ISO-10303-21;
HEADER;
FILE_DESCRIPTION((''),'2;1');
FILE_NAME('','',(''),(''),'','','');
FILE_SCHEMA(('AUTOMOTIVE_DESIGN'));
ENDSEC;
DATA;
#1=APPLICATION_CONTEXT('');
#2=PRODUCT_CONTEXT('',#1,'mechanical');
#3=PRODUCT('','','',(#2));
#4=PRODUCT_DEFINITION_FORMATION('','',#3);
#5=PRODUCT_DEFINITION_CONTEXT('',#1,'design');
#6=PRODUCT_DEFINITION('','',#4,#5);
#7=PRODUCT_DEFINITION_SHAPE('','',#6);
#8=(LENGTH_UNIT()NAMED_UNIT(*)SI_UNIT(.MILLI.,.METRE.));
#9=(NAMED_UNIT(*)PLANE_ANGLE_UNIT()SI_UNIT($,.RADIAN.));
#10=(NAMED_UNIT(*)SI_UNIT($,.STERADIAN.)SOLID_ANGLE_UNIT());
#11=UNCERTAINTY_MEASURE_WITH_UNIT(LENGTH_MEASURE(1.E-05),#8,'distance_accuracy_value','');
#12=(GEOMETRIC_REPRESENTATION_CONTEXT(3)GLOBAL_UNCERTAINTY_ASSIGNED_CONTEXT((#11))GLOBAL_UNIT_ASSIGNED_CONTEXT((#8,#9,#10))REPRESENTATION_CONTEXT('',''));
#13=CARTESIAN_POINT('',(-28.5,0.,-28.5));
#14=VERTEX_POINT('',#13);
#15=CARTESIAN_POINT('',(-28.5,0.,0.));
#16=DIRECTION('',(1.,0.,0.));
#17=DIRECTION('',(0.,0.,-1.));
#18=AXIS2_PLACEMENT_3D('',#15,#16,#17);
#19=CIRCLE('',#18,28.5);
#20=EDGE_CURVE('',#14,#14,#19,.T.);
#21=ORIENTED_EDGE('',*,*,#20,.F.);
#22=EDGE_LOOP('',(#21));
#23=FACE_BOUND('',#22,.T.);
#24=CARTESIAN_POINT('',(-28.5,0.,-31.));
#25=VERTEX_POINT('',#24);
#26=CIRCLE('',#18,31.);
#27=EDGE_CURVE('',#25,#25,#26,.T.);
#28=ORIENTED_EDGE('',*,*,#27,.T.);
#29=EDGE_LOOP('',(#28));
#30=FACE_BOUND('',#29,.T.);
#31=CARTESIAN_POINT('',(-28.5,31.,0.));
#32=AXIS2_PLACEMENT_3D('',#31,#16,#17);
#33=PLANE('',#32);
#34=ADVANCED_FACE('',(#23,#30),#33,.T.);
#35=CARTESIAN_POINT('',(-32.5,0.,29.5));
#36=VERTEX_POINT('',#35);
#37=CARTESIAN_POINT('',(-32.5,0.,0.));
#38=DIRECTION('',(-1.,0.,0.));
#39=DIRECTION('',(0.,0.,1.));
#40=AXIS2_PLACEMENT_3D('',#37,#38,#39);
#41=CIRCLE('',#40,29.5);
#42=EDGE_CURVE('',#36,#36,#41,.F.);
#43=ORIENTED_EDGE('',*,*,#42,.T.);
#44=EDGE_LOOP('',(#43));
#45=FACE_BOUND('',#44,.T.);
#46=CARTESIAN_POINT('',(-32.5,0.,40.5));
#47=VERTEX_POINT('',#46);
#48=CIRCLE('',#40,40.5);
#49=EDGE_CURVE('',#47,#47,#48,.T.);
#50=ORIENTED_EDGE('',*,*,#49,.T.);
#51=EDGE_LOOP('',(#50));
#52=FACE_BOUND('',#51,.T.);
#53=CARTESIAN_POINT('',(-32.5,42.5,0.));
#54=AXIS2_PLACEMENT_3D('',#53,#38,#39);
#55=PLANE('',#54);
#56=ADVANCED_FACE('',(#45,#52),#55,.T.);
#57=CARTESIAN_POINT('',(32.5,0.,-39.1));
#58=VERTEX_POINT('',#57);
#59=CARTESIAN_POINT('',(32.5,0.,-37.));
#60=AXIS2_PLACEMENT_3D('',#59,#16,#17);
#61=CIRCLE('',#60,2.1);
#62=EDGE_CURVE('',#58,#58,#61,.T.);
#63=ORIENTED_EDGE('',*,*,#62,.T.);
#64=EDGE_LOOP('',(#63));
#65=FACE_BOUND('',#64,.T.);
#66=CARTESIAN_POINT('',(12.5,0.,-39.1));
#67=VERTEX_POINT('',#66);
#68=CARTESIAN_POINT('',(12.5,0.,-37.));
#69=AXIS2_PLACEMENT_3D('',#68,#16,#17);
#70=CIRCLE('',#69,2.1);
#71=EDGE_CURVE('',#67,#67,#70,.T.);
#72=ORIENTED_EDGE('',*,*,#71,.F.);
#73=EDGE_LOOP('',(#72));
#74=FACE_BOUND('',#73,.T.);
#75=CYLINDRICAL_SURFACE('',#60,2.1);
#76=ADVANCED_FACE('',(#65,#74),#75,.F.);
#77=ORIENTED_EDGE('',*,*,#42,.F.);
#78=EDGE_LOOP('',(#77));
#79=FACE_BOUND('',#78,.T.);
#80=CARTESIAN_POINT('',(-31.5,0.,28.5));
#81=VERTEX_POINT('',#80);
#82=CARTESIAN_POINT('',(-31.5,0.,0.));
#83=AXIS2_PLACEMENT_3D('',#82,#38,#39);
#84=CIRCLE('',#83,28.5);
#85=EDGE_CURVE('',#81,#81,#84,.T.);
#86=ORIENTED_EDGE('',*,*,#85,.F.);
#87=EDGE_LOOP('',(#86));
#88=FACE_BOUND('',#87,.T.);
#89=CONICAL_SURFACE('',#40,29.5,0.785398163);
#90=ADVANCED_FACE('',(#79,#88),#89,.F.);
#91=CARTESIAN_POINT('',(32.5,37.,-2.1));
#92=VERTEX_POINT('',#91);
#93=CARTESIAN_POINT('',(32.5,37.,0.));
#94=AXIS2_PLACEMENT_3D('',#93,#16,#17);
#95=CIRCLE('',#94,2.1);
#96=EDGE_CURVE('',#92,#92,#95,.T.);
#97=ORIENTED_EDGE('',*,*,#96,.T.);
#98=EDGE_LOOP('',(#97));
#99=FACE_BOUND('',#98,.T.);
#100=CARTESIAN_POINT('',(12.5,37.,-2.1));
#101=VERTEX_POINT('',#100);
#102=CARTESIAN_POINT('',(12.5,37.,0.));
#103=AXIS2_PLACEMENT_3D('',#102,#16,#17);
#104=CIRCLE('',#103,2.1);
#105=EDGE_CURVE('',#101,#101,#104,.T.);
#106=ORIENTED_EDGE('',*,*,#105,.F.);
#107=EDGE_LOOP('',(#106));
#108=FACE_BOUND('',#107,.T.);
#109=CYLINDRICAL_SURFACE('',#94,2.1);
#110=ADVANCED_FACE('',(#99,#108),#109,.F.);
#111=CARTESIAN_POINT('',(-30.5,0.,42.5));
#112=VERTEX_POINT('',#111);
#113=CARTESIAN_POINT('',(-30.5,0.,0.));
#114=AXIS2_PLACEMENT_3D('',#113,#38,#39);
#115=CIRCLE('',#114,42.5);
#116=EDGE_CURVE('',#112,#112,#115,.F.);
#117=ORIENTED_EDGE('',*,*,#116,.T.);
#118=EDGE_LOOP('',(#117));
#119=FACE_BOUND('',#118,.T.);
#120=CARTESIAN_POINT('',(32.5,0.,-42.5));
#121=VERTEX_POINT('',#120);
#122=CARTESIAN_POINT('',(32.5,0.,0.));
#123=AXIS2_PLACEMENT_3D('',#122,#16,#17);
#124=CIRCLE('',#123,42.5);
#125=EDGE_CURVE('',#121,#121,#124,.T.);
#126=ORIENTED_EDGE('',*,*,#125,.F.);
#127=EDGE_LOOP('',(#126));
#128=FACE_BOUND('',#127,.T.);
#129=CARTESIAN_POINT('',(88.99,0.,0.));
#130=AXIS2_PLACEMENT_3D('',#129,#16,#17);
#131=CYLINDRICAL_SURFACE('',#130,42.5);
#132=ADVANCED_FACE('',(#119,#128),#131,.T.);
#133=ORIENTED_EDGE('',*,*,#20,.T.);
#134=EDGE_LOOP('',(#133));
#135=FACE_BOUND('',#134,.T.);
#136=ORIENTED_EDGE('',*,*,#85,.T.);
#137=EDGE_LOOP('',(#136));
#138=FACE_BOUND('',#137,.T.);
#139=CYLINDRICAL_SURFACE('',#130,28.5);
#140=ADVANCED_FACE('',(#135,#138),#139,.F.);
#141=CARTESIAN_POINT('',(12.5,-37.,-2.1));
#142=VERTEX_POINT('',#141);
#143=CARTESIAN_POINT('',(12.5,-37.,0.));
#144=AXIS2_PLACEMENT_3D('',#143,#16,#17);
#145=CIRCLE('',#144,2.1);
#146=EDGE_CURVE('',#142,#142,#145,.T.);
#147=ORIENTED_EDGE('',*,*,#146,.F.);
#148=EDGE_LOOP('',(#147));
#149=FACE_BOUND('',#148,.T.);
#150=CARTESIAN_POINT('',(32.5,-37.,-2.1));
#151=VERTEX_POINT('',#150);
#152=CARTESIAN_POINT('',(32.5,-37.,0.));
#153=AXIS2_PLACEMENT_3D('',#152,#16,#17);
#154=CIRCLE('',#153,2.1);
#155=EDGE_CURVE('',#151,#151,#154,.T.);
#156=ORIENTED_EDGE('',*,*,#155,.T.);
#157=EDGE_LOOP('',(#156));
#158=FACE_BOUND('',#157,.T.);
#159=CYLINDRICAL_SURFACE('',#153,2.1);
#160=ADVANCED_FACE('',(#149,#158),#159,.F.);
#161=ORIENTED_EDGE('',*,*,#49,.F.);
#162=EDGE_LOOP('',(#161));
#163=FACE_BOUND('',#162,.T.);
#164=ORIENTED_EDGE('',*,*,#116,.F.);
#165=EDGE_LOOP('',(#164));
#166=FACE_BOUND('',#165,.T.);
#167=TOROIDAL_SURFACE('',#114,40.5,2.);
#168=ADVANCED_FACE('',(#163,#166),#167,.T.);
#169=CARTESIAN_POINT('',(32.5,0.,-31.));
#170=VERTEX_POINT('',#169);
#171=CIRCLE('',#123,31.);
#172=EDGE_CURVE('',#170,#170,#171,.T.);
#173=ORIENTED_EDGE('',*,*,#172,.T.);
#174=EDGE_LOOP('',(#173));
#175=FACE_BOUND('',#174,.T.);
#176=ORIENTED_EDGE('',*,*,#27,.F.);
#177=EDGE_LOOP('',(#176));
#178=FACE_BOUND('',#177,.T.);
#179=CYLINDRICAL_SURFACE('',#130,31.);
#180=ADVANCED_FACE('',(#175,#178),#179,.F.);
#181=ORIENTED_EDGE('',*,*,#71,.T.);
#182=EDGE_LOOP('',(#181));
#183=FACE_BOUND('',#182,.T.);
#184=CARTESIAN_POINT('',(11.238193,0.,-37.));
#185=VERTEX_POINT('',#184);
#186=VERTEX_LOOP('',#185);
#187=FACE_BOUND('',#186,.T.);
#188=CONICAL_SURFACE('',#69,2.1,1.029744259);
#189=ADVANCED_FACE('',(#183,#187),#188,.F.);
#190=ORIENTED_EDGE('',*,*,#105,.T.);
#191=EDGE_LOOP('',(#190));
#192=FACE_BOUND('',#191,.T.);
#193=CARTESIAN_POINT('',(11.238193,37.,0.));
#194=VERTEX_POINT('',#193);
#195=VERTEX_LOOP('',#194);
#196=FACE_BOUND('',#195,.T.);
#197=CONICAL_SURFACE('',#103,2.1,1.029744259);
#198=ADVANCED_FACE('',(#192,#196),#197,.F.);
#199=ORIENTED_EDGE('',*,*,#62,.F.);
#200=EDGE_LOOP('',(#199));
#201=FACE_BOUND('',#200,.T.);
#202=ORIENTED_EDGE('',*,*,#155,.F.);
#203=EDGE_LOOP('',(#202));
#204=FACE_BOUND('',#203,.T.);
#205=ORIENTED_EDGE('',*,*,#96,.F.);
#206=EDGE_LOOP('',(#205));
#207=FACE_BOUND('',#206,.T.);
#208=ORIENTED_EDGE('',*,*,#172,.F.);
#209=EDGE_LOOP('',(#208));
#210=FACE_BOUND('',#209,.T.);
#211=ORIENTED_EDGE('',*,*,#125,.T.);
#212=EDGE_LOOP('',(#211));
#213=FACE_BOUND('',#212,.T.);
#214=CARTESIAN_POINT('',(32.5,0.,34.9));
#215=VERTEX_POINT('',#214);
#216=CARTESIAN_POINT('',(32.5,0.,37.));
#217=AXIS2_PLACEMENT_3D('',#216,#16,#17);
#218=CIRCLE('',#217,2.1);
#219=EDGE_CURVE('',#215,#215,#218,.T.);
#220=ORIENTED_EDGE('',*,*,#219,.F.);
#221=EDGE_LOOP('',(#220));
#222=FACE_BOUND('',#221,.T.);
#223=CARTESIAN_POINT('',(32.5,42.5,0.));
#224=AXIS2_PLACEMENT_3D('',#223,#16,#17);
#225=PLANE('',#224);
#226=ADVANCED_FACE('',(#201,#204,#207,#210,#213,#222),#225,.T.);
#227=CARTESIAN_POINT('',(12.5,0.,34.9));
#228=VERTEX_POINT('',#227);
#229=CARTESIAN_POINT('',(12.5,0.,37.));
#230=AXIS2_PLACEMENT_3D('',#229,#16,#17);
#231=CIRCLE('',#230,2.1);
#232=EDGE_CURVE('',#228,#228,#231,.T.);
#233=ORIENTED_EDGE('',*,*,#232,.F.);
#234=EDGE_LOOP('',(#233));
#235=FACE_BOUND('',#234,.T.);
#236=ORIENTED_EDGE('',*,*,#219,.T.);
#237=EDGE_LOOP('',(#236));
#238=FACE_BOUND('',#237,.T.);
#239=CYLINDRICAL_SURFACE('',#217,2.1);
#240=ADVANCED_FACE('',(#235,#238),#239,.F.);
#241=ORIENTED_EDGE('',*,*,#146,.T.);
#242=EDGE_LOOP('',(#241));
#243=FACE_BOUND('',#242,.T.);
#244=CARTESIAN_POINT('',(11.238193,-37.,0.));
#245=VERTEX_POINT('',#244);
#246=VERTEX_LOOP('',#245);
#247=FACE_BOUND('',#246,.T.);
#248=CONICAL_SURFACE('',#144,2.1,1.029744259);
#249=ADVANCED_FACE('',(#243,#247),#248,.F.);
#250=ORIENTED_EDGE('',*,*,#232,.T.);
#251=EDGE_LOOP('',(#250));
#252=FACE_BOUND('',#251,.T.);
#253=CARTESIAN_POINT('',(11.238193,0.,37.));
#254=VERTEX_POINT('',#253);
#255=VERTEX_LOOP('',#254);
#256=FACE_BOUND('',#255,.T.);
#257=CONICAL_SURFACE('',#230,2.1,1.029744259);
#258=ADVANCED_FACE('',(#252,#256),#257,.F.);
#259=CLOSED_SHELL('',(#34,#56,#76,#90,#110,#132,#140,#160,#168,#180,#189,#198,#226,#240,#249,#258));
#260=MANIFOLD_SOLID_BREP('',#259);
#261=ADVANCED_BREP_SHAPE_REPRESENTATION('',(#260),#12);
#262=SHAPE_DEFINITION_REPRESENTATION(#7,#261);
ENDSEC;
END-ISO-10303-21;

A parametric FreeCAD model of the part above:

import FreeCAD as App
import Part
import Sketcher
from FreeCAD import Vector
Q = App.Units.Quantity


def edges_at(feature, points):
    """Names of the edges that pass closest to the given points."""
    edges = feature.Shape.Edges
    near = lambda p: min(range(len(edges)), key=lambda i: edges[i].distToShape(Part.Vertex(*p))[0])
    return sorted({f"Edge{near(p) + 1}" for p in points})


def add_polygon(sketch, points):
    """Adds a closed chain of lines whose ends are joined by coincident constraints."""
    first, n = sketch.GeometryCount, len(points)
    for a, b in zip(points, points[1:] + points[:1]):
        sketch.addGeometry(Part.LineSegment(App.Vector(*a, 0), App.Vector(*b, 0)), False)
    for i in range(n):
        sketch.addConstraint(Sketcher.Constraint("Coincident", first + i, 2, first + (i + 1) % n, 1))

doc = App.newDocument("Part")
params = doc.addObject("Spreadsheet::Sheet", "Params")
for row, (alias, value) in enumerate([
    ("sketch1_width", "65 mm"),
    ("sketch1_width2", "4 mm"),
    ("sketch1_height", "14 mm"),
    ("sketch1_height2", "2.5 mm"),
    ("revolution_angle", "360 deg"),
    ("fillet_radius", "2 mm"),
    ("chamfer_size", "1 mm"),
    ("sketch2_width", "20 mm"),
    ("sketch2_height", "2.1 mm"),
    ("groove_angle", "360 deg"),
], start=1):
    params.set(f"A{row}", alias)
    params.set(f"B{row}", "=" + value)
    params.setAlias(f"B{row}", alias)

body = doc.addObject("PartDesign::Body", "Body")

# Sketch on XY plane
sketch1 = doc.addObject("Sketcher::SketchObject", "Sketch")
body.addObject(sketch1)
sketch1.AttachmentSupport = (doc.XY_Plane, [""])
sketch1.MapMode = "FlatFace"
add_polygon(sketch1, [(32.5, 42.5), (-32.5, 42.5), (-32.5, 28.5), (-28.5, 28.5), (-28.5, 31), (32.5, 31)])  # lines 0-5
sketch1.addConstraint([
    Sketcher.Constraint("Horizontal", 0),
    Sketcher.Constraint("Vertical", 1),
    Sketcher.Constraint("Horizontal", 2),
    Sketcher.Constraint("Vertical", 3),
    Sketcher.Constraint("Horizontal", 4),
    Sketcher.Constraint("Vertical", 5),
    Sketcher.Constraint("DistanceX", 0, 2, 0, 1, 65.0),
    Sketcher.Constraint("DistanceX", 2, 1, 2, 2, 4.0),
    Sketcher.Constraint("DistanceY", 1, 2, 1, 1, 14.0),
    Sketcher.Constraint("DistanceY", 3, 1, 3, 2, 2.5),
    Sketcher.Constraint("DistanceY", -1, 1, 3, 2, 31.0),
    Sketcher.Constraint("DistanceX", 0, 2, -1, 1, 32.5),
])
sketch1.setExpression("Constraints[12]", "Params.sketch1_width")
sketch1.setExpression("Constraints[13]", "Params.sketch1_width2")
sketch1.setExpression("Constraints[14]", "Params.sketch1_height")
sketch1.setExpression("Constraints[15]", "Params.sketch1_height2")
revolution = doc.addObject("PartDesign::Revolution", "Revolution")
body.addObject(revolution)
revolution.Profile = sketch1
revolution.ReferenceAxis = (sketch1, ["H_Axis"])
revolution.setExpression("Angle", "Params.revolution_angle")
doc.recompute()

fillet = doc.addObject("PartDesign::Fillet", "Fillet")
body.addObject(fillet)
fillet.Base = (revolution, edges_at(revolution, [(-32.5, -42.5, 0)]))
fillet.setExpression("Radius", "Params.fillet_radius")
doc.recompute()

chamfer = doc.addObject("PartDesign::Chamfer", "Chamfer")
body.addObject(chamfer)
chamfer.Base = (fillet, edges_at(fillet, [(-32.5, -28.5, 0)]))
chamfer.setExpression("Size", "Params.chamfer_size")

# Sketch on XZ plane
sketch2 = doc.addObject("Sketcher::SketchObject", "Sketch001")
body.addObject(sketch2)
sketch2.AttachmentSupport = (doc.XZ_Plane, [""])
sketch2.MapMode = "FlatFace"
sketch2.AttachmentOffset = App.Placement(Vector(0, 0, -37), App.Rotation())
add_polygon(sketch2, [(11.238193, 0), (32.5, 0), (32.5, -2.1), (12.5, -2.1)])  # lines 0-3
sketch2.addConstraint([
    Sketcher.Constraint("Horizontal", 0),
    Sketcher.Constraint("Vertical", 1),
    Sketcher.Constraint("Horizontal", 2),
    Sketcher.Constraint("PointOnObject", 0, 2, -1),
    Sketcher.Constraint("DistanceX", 2, 2, 2, 1, 20.0),
    Sketcher.Constraint("Angle", 3, Q("121 deg")),
    Sketcher.Constraint("DistanceY", 1, 2, 1, 1, 2.1),
    Sketcher.Constraint("DistanceX", -1, 1, 0, 2, 32.5),
])
sketch2.setExpression("Constraints[8]", "Params.sketch2_width")
sketch2.setExpression("Constraints[10]", "Params.sketch2_height")
groove = doc.addObject("PartDesign::Groove", "Groove")
body.addObject(groove)
groove.Profile = sketch2
groove.ReferenceAxis = (sketch2, ["H_Axis"])
groove.setExpression("Angle", "Params.groove_angle")
doc.recompute()

polarpattern = doc.addObject("PartDesign::PolarPattern", "PolarPattern")
body.addObject(polarpattern)
polarpattern.Originals = [groove]
polarpattern.Axis = (doc.X_Axis, [""])
polarpattern.Angle = 360
polarpattern.Occurrences = 4
body.Tip = polarpattern

doc.recompute()
